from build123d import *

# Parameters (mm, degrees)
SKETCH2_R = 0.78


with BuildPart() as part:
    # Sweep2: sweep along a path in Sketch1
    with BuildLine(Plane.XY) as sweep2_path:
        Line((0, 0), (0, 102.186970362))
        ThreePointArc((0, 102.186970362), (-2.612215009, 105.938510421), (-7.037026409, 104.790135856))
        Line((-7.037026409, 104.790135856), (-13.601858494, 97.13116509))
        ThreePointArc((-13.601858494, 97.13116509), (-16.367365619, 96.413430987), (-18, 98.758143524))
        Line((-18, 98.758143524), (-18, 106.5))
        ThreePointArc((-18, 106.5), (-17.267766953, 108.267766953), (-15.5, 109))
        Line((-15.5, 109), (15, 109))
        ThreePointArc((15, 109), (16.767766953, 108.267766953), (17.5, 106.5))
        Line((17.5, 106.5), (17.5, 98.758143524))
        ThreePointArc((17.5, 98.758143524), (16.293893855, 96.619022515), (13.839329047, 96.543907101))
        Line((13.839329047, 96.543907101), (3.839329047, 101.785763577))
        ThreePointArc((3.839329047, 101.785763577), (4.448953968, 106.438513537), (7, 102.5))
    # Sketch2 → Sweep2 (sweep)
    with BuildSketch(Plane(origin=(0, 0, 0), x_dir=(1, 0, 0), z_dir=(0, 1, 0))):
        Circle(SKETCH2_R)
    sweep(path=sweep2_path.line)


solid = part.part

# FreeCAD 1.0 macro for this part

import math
import FreeCAD as App
import Part
import Sketcher

V = App.Vector

doc = App.newDocument("Part")
body = doc.addObject("PartDesign::Body", "Body")

# Sketch on XZ plane
sketch1 = body.newObject("Sketcher::SketchObject", "Sketch")
sketch1.AttachmentSupport = (doc.getObject("XZ_Plane"), [""])
sketch1.MapMode = "FlatFace"
sketch1.addGeometry(Part.Circle(V(0, 0, 0), V(0, 0, 1), 0.8), False)
sketch1.addConstraint([
    Sketcher.Constraint("Coincident", 0, 3, -1, 1),
    Sketcher.Constraint("Diameter", 0, 1.56),
])

# Sketch on XY plane
sketch2 = body.newObject("Sketcher::SketchObject", "Sketch001")
sketch2.AttachmentSupport = (doc.getObject("XY_Plane"), [""])
sketch2.MapMode = "FlatFace"
sketch2.addGeometry([
    Part.LineSegment(V(0, 0, 0), V(0, 102.2, 0)),  # 0
    Part.ArcOfCircle(Part.Circle(V(-4, 102.2, 0), V(0, 0, 1), 4), math.radians(0), math.radians(139)),  # 1
    Part.LineSegment(V(-7, 104.8, 0), V(-13.6, 97.1, 0)),  # 2
    Part.ArcOfCircle(Part.Circle(V(-15.5, 98.8, 0), V(0, 0, 1), 2.5), math.radians(-180), math.radians(-41)),  # 3
    Part.LineSegment(V(-18, 98.8, 0), V(-18, 106.5, 0)),  # 4
    Part.ArcOfCircle(Part.Circle(V(-15.5, 106.5, 0), V(0, 0, 1), 2.5), math.radians(90), math.radians(180)),  # 5
    Part.LineSegment(V(-15.5, 109, 0), V(15, 109, 0)),  # 6
    Part.ArcOfCircle(Part.Circle(V(15, 106.5, 0), V(0, 0, 1), 2.5), math.radians(0), math.radians(90)),  # 7
    Part.LineSegment(V(17.5, 106.5, 0), V(17.5, 98.8, 0)),  # 8
    Part.ArcOfCircle(Part.Circle(V(15, 98.8, 0), V(0, 0, 1), 2.5), math.radians(-118), math.radians(0)),  # 9
    Part.LineSegment(V(13.8, 96.5, 0), V(3.8, 101.8, 0)),  # 10
    Part.ArcOfCircle(Part.Circle(V(5, 104, 0), V(0, 0, 1), 2.5), math.radians(-37), math.radians(242)),  # 11
], False)
sketch2.addConstraint([
    Sketcher.Constraint("Tangent", 0, 2, 1, 1),
    Sketcher.Constraint("Tangent", 1, 2, 2, 1),
    Sketcher.Constraint("Tangent", 2, 2, 3, 2),
    Sketcher.Constraint("Tangent", 3, 1, 4, 1),
    Sketcher.Constraint("Tangent", 4, 2, 5, 2),
    Sketcher.Constraint("Tangent", 5, 1, 6, 1),
    Sketcher.Constraint("Tangent", 6, 2, 7, 2),
    Sketcher.Constraint("Tangent", 7, 1, 8, 1),
    Sketcher.Constraint("Tangent", 8, 2, 9, 2),
    Sketcher.Constraint("Tangent", 9, 1, 10, 1),
    Sketcher.Constraint("Tangent", 10, 2, 11, 2),
    Sketcher.Constraint("Vertical", 0),
    Sketcher.Constraint("Vertical", 4),
    Sketcher.Constraint("Horizontal", 6),
    Sketcher.Constraint("Vertical", 8),
    Sketcher.Constraint("Coincident", 0, 1, -1, 1),
    Sketcher.Constraint("Equal", 3, 5),
    Sketcher.Constraint("Equal", 5, 7),
    Sketcher.Constraint("Equal", 7, 9),
    Sketcher.Constraint("Equal", 9, 11),
    Sketcher.Constraint("Horizontal", 3, 3, 9, 3),
    Sketcher.Constraint("Radius", 1, 4.0),
    Sketcher.Constraint("Radius", 3, 2.5),
    Sketcher.Constraint("DistanceX", 6, 1, 6, 2, 30.5),
    Sketcher.Constraint("DistanceX", -1, 1, 7, 3, 15.0),
    Sketcher.Constraint("DistanceX", -1, 1, 11, 3, 5.0),
    Sketcher.Constraint("DistanceY", -1, 1, 11, 3, 104.0),
    Sketcher.Constraint("DistanceY", -1, 1, 5, 1, 109.0),
    Sketcher.Constraint("DistanceX", -1, 1, 11, 1, 7.0),
    Sketcher.Constraint("DistanceY", 0, 1, 0, 2, 102.18697),
    Sketcher.Constraint("Distance", 2, 10.08746),
])
doc.recompute()

additivepipe = body.newObject("PartDesign::AdditivePipe", "AdditivePipe")
additivepipe.Profile = sketch1
additivepipe.Spine = (sketch2, ["Edge1", "Edge2", "Edge3", "Edge4", "Edge5", "Edge6", "Edge7", "Edge8", "Edge9", "Edge10", "Edge11", "Edge12"])

doc.recompute()
